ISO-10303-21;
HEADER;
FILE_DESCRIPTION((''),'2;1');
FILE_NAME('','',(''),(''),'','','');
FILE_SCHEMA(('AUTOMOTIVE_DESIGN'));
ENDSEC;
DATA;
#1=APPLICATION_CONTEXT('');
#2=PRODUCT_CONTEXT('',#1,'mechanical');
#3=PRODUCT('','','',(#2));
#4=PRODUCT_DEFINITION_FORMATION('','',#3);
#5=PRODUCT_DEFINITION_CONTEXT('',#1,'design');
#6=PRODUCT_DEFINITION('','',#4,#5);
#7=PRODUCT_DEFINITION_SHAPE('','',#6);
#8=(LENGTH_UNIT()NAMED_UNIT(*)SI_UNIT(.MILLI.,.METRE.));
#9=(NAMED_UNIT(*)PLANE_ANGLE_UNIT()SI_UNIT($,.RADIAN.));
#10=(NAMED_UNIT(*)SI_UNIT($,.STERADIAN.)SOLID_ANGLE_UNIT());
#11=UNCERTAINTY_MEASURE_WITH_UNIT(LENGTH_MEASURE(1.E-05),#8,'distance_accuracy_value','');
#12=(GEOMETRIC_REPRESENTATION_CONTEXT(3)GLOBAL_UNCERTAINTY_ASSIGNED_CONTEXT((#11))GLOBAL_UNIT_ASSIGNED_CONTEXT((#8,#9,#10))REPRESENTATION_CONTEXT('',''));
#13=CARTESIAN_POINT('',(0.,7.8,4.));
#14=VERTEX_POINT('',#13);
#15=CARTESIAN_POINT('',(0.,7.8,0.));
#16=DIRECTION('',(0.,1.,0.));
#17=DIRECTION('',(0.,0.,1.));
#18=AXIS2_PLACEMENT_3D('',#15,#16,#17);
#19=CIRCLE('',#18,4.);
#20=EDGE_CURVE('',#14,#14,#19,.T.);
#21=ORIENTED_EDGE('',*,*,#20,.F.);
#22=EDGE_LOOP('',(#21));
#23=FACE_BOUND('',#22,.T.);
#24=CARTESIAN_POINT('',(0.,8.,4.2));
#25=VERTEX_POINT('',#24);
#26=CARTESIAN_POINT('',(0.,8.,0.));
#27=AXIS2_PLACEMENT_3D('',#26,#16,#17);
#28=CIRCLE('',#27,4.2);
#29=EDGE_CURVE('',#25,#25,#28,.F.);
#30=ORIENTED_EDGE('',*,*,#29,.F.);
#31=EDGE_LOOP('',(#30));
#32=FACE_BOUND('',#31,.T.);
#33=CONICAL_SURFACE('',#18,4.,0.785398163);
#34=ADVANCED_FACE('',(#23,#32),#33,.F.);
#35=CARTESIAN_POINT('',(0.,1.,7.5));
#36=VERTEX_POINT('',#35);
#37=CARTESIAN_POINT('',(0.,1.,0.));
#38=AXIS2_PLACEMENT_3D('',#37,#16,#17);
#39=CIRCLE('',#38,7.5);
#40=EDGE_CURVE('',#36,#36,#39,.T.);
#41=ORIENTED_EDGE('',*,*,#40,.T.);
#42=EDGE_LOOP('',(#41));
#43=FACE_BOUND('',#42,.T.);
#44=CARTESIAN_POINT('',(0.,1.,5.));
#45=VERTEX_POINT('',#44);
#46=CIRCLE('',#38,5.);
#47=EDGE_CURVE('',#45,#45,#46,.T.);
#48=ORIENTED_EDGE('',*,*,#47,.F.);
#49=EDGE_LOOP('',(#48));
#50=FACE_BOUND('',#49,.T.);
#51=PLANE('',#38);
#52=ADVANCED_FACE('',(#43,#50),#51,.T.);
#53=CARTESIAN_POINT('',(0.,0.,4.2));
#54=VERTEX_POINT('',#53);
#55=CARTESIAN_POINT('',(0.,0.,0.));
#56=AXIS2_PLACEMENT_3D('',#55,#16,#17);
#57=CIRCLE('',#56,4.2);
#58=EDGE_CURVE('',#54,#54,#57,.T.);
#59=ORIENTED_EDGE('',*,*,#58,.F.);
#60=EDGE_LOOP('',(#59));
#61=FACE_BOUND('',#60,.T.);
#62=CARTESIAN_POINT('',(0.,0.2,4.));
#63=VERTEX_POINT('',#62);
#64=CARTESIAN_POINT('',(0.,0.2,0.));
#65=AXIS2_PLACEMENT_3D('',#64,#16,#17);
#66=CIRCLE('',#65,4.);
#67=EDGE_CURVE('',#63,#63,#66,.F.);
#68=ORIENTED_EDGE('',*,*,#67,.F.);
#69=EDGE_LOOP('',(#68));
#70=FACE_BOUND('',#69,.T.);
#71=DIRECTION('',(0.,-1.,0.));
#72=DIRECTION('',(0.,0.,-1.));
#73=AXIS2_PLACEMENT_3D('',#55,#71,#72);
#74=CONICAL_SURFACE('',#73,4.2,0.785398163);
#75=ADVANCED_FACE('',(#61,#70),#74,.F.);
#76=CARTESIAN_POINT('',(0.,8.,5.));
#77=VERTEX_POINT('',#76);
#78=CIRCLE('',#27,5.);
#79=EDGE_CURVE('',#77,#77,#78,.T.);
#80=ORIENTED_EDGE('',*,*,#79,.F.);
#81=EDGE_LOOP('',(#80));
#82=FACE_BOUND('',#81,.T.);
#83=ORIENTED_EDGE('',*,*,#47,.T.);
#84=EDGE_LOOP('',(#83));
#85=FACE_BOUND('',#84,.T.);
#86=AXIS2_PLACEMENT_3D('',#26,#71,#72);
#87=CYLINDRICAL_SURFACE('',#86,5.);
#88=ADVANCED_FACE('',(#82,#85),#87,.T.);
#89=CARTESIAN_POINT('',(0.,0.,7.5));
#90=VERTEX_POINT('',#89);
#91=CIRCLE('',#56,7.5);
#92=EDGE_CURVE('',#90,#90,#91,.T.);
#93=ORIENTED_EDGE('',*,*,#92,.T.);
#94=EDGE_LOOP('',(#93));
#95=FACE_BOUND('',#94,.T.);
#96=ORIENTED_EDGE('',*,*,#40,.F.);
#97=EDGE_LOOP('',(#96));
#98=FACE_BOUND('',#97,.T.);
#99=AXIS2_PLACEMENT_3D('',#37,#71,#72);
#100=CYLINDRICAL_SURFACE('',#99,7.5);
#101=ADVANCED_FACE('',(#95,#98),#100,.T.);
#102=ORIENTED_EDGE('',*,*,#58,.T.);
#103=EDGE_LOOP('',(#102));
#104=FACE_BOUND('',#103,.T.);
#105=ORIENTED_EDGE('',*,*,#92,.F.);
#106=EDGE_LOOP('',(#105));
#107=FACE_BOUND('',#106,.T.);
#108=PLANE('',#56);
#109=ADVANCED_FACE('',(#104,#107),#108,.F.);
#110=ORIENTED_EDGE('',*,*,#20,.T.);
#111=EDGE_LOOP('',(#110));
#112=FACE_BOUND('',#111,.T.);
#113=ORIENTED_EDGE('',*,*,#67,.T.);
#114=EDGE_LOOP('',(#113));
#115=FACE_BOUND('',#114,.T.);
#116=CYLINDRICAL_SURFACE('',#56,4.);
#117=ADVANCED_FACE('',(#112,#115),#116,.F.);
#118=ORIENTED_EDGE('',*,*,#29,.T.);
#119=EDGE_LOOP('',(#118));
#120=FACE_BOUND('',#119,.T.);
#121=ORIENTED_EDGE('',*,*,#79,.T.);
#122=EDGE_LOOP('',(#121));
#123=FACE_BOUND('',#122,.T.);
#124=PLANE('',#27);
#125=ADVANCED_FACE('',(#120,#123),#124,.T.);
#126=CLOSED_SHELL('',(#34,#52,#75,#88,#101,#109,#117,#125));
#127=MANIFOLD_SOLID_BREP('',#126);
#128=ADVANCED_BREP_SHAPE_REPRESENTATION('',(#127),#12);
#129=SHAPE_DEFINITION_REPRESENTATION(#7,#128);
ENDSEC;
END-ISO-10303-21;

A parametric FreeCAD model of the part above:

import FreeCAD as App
import Part
import Sketcher
from FreeCAD import Vector
Q = App.Units.Quantity


def edges_at(feature, points):
    """Names of the edges that pass closest to the given points."""
    edges = feature.Shape.Edges
    near = lambda p: min(range(len(edges)), key=lambda i: edges[i].distToShape(Part.Vertex(*p))[0])
    return sorted({f"Edge{near(p) + 1}" for p in points})

doc = App.newDocument("Part")
body = doc.addObject("PartDesign::Body", "Body")

# Sketch on XZ plane
sketch1 = body.newObject("Sketcher::SketchObject", "Sketch")
sketch1.AttachmentSupport = (doc.getObject("XZ_Plane"), [""])
sketch1.MapMode = "FlatFace"
sketch1.addGeometry(Part.Circle(Vector(0, 0, 0), Vector(0, 0, 1), 7.5), False)
sketch1.addConstraint([
    Sketcher.Constraint("Coincident", 0, 3, -1, 1),
    Sketcher.Constraint("Diameter", 0, Q("15 mm")),
])
pad1 = body.newObject("PartDesign::Pad", "Pad")
pad1.Profile = sketch1
pad1.Length = 1
pad1.Reversed = True

# Sketch on XZ plane
sketch2 = body.newObject("Sketcher::SketchObject", "Sketch001")
sketch2.AttachmentSupport = (doc.getObject("XZ_Plane"), [""])
sketch2.MapMode = "FlatFace"
sketch2.AttachmentOffset = App.Placement(Vector(0, 0, -1), App.Rotation())
sketch2.addGeometry(Part.Circle(Vector(0, 0, 0), Vector(0, 0, 1), 5), False)
sketch2.addConstraint([
    Sketcher.Constraint("Coincident", 0, 3, -1, 1),
    Sketcher.Constraint("Diameter", 0, Q("10 mm")),
])
pad2 = body.newObject("PartDesign::Pad", "Pad001")
pad2.Profile = sketch2
pad2.Length = 7
pad2.Reversed = True

# Sketch on XZ plane
sketch3 = body.newObject("Sketcher::SketchObject", "Sketch002")
sketch3.AttachmentSupport = (doc.getObject("XZ_Plane"), [""])
sketch3.MapMode = "FlatFace"
sketch3.AttachmentOffset = App.Placement(Vector(0, 0, -8), App.Rotation())
sketch3.addGeometry(Part.Circle(Vector(0, 0, 0), Vector(0, 0, 1), 4), False)
sketch3.addConstraint([
    Sketcher.Constraint("Coincident", 0, 3, -1, 1),
    Sketcher.Constraint("Diameter", 0, Q("8 mm")),
])
pocket1 = body.newObject("PartDesign::Pocket", "Pocket")
pocket1.Profile = sketch3
pocket1.Type = "ThroughAll"
pocket1.Reversed = True
doc.recompute()

chamfer = body.newObject("PartDesign::Chamfer", "Chamfer")
chamfer.Base = (pocket1, edges_at(pocket1, [(0, 0, -4), (0, 8, -4)]))
chamfer.Size = 0.2

doc.recompute()
